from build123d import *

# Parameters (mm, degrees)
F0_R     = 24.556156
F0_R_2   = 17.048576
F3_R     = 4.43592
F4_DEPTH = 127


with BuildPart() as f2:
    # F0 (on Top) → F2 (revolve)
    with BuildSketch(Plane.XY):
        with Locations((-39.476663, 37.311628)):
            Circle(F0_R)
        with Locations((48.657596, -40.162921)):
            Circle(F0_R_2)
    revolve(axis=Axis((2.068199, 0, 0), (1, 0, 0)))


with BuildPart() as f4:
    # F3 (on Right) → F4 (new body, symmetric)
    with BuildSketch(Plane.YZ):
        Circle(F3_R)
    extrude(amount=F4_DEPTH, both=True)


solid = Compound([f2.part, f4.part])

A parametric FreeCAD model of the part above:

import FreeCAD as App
import Part
import Sketcher
from FreeCAD import Vector
Q = App.Units.Quantity

doc = App.newDocument("Part")
body = doc.addObject("PartDesign::Body", "Body")
body.AllowCompound = True

sketch1 = doc.addObject("Sketcher::SketchObject", "Sketch")
body.addObject(sketch1)
sketch1.AttachmentSupport = (doc.XY_Plane, [""])
sketch1.MapMode = "FlatFace"
sketch1.addGeometry([
    Part.Circle(Vector(-39, 37, 0), Vector(0, 0, 1), 25),
    Part.Circle(Vector(49, -40, 0), Vector(0, 0, 1), 17),
], False)
sketch1.addConstraint([
    Sketcher.Constraint("Diameter", 0, 49.112312),
    Sketcher.Constraint("Diameter", 1, 34.097152),
    Sketcher.Constraint("DistanceY", 1, 3, -1, 1, 40.162921),
    Sketcher.Constraint("DistanceX", 0, 3, 1, 3, 88.134259),
    Sketcher.Constraint("DistanceY", 1, 3, 0, 3, 77.474549),
    Sketcher.Constraint("DistanceX", 0, 3, -1, 1, 39.476663),
])
revolution = doc.addObject("PartDesign::Revolution", "Revolution")
body.addObject(revolution)
revolution.Profile = sketch1
revolution.ReferenceAxis = (sketch1, ["H_Axis"])
revolution.Angle = 360
body2 = doc.addObject("PartDesign::Body", "Body001")

sketch2 = doc.addObject("Sketcher::SketchObject", "Sketch001")
body2.addObject(sketch2)
sketch2.AttachmentSupport = (doc.getObject("YZ_Plane001"), [""])
sketch2.MapMode = "FlatFace"
sketch2.addGeometry(Part.Circle(Vector(0, 0, 0), Vector(0, 0, 1), 4.4), False)
sketch2.addConstraint([
    Sketcher.Constraint("Coincident", 0, 3, -1, 1),
    Sketcher.Constraint("Diameter", 0, 8.87184),
])
pad1 = doc.addObject("PartDesign::Pad", "Pad")
body2.addObject(pad1)
pad1.Profile = sketch2
pad1.Length = Q("10 in")
pad1.Midplane = True

doc.recompute()
